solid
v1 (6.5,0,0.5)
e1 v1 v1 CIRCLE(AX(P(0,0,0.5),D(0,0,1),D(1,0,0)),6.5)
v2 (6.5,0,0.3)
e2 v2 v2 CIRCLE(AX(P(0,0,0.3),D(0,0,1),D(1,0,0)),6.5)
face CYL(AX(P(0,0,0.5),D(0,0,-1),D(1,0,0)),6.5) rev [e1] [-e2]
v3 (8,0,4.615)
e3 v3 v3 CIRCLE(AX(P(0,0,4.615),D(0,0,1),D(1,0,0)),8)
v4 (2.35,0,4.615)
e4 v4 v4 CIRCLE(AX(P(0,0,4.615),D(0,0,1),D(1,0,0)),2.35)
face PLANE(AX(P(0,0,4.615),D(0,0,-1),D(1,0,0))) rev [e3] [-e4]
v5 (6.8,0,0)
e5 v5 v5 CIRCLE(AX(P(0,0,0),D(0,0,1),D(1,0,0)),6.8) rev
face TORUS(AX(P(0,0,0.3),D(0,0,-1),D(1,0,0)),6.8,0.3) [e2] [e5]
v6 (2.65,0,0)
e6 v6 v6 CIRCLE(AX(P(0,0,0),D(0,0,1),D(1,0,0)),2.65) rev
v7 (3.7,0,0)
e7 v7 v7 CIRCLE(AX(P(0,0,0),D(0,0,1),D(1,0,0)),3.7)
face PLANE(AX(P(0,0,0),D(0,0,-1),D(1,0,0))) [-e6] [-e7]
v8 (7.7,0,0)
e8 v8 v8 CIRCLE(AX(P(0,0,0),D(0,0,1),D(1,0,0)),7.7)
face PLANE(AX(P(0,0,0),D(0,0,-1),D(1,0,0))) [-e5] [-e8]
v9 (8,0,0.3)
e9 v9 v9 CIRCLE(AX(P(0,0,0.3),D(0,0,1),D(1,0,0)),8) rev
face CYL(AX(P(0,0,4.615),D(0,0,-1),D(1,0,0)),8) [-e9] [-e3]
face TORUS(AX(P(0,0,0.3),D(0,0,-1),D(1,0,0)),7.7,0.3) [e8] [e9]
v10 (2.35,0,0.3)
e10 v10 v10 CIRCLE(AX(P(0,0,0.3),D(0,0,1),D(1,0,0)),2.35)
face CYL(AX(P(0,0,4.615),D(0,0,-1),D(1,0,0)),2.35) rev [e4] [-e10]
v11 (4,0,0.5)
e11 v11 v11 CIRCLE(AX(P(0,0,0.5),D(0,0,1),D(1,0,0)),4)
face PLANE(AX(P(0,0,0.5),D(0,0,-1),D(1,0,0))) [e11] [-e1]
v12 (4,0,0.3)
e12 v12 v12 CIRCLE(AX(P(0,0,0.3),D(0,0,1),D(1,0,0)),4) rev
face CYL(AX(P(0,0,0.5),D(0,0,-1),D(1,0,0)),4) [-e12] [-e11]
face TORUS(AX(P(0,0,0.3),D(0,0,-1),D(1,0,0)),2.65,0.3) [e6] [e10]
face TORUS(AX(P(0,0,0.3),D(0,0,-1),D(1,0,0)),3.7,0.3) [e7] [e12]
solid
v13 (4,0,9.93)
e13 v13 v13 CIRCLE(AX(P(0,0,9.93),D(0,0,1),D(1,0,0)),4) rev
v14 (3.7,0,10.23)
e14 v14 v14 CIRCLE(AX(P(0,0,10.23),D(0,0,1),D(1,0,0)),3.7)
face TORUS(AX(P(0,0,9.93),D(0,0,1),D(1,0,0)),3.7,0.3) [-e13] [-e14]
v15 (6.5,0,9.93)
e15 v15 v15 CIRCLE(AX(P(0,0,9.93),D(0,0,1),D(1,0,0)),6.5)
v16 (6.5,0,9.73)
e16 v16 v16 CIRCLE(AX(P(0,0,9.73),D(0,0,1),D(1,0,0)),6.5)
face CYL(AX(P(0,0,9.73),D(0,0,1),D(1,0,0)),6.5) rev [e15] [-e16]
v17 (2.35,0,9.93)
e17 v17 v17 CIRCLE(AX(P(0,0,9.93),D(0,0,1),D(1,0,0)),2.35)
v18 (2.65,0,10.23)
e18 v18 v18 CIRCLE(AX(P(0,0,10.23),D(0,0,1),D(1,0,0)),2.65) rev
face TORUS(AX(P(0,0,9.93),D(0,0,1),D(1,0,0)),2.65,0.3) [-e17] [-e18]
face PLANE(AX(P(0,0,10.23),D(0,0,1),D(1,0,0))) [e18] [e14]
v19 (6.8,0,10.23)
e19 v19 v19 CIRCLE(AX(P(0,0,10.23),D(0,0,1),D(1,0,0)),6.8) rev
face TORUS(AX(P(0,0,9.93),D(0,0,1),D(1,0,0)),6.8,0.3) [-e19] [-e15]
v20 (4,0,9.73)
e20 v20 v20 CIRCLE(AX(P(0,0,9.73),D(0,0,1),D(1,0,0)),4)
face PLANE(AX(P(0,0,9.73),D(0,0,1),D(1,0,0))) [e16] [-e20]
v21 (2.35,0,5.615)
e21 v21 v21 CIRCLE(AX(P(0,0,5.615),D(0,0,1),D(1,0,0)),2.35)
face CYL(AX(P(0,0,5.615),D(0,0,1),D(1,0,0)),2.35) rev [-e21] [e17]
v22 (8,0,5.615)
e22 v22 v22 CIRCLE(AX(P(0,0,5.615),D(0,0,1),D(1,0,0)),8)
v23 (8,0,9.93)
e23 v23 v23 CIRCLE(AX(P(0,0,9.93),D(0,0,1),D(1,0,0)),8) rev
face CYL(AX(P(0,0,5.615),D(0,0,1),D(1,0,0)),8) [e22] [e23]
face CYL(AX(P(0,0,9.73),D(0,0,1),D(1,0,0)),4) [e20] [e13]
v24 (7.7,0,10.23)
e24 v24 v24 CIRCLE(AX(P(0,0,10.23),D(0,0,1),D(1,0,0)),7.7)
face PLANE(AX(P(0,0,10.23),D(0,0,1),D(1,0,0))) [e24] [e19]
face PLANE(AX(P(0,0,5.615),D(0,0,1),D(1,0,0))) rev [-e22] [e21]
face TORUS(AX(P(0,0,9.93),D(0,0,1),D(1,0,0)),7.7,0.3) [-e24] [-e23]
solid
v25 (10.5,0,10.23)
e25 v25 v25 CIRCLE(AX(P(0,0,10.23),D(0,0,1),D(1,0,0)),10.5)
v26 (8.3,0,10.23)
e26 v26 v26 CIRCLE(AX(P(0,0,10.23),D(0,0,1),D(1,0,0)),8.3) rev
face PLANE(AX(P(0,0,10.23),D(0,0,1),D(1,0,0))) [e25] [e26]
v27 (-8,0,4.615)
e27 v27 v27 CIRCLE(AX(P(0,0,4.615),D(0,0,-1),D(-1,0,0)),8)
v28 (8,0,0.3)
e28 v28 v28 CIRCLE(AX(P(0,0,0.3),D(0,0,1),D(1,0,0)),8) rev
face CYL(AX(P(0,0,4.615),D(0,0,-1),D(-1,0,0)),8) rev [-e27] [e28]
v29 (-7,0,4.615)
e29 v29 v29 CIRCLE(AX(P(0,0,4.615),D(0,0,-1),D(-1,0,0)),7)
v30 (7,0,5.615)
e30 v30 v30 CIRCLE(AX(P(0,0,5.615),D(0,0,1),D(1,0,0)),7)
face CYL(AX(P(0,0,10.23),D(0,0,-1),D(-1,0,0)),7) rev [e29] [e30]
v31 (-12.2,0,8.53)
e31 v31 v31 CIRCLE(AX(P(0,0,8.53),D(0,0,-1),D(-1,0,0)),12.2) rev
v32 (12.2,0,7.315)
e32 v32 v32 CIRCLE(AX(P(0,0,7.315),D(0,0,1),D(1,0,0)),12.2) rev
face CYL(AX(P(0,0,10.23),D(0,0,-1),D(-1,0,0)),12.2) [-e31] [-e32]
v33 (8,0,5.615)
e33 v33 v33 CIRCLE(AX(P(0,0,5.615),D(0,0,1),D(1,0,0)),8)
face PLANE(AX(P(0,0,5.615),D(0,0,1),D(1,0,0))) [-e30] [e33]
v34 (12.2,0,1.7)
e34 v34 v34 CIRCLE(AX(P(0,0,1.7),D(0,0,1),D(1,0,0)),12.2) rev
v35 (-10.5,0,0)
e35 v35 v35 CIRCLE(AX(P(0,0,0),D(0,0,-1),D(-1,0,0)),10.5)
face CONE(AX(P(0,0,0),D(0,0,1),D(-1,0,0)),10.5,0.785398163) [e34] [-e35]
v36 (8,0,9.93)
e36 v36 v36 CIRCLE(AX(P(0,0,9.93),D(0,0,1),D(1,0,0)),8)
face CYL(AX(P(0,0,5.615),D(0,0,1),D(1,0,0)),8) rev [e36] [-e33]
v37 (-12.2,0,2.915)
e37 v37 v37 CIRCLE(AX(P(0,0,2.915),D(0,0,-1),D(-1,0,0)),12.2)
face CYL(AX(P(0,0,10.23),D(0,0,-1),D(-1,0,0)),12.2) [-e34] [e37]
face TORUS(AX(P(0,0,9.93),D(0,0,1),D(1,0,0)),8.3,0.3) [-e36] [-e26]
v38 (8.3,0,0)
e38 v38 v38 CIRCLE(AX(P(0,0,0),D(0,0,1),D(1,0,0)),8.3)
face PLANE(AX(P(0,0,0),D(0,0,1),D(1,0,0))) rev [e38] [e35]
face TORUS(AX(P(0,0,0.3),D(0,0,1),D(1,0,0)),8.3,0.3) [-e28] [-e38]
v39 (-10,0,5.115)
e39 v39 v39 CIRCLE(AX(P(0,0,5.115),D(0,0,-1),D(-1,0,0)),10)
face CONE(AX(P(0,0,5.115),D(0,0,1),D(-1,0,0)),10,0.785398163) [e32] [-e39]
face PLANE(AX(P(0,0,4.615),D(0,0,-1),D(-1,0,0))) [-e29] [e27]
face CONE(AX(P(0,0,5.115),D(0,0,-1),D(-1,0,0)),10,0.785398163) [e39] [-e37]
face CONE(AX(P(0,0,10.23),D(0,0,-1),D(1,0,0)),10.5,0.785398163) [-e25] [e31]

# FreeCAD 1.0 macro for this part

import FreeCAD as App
import Part
import Sketcher


def edges_at(feature, points):
    """Names of the edges that pass closest to the given points."""
    edges = feature.Shape.Edges
    near = lambda p: min(range(len(edges)), key=lambda i: edges[i].distToShape(Part.Vertex(*p))[0])
    return sorted({f"Edge{near(p) + 1}" for p in points})


def faces_at(feature, points):
    """Names of the faces that lie closest to the given points."""
    faces = feature.Shape.Faces
    near = lambda p: min(range(len(faces)), key=lambda i: faces[i].distToShape(Part.Vertex(*p))[0])
    return sorted({f"Face{near(p) + 1}" for p in points})

doc = App.newDocument("Part")
body = doc.addObject("PartDesign::Body", "Body")

sketch1 = body.newObject("Sketcher::SketchObject", "Sketch")
sketch1.AttachmentSupport = (doc.getObject("XY_Plane"), [""])
sketch1.MapMode = "FlatFace"
sketch1.addGeometry(Part.Circle(App.Vector(0, 0, 0), App.Vector(0, 0, 1), 12.2), False)
sketch1.addGeometry(Part.Circle(App.Vector(0, 0, 0), App.Vector(0, 0, 1), 7), False)
sketch1.addConstraint(Sketcher.Constraint("Coincident", 0, 3, -1, 1))
sketch1.addConstraint(Sketcher.Constraint("Coincident", 1, 3, -1, 1))
sketch1.addConstraint(Sketcher.Constraint("Diameter", 1, 14.0))
sketch1.addConstraint(Sketcher.Constraint("Diameter", 0, 24.4))
pad1 = body.newObject("PartDesign::Pad", "Pad")
pad1.Profile = sketch1
pad1.Length = 10.23
body2 = doc.addObject("PartDesign::Body", "Body001")

sketch2 = body2.newObject("Sketcher::SketchObject", "Sketch001")
sketch2.AttachmentSupport = (doc.getObject("XY_Plane001"), [""])
sketch2.MapMode = "FlatFace"
sketch2.AttachmentOffset = App.Placement(App.Vector(0, 0, 10.23), App.Rotation())
sketch2.addGeometry(Part.LineSegment(App.Vector(-19.219, 19.219, 0), App.Vector(-19.219, -19.219, 0)), False)
sketch2.addGeometry(Part.LineSegment(App.Vector(-19.219, -19.219, 0), App.Vector(19.219, -19.219, 0)), False)
sketch2.addGeometry(Part.LineSegment(App.Vector(19.219, -19.219, 0), App.Vector(19.219, 19.219, 0)), False)
sketch2.addGeometry(Part.LineSegment(App.Vector(19.219, 19.219, 0), App.Vector(-19.219, 19.219, 0)), False)
sketch2.addGeometry(Part.Circle(App.Vector(0, 0, 0), App.Vector(0, 0, 1), 10.5), False)
sketch2.addConstraint(Sketcher.Constraint("Coincident", 0, 2, 1, 1))
sketch2.addConstraint(Sketcher.Constraint("Coincident", 1, 2, 2, 1))
sketch2.addConstraint(Sketcher.Constraint("Coincident", 2, 2, 3, 1))
sketch2.addConstraint(Sketcher.Constraint("Coincident", 3, 2, 0, 1))
sketch2.addConstraint(Sketcher.Constraint("Vertical", 0))
sketch2.addConstraint(Sketcher.Constraint("Horizontal", 1))
sketch2.addConstraint(Sketcher.Constraint("Vertical", 2))
sketch2.addConstraint(Sketcher.Constraint("Horizontal", 3))
sketch2.addConstraint(Sketcher.Constraint("Coincident", 4, 3, -1, 1))
sketch2.addConstraint(Sketcher.Constraint("Symmetric", 0, 2, 2, 2, -1, 1))
sketch2.addConstraint(Sketcher.Constraint("Equal", 3, 0))
sketch2.addConstraint(Sketcher.Constraint("Diameter", 4, 21.0))
sketch2.addConstraint(Sketcher.Constraint("DistanceX", 1, 1, 1, 2, 38.438))
pad2 = body2.newObject("PartDesign::Pad", "Pad001")
pad2.Profile = sketch2
pad2.Length = 2.42
pad2.Reversed = True
doc.recompute()

datumplane = body2.newObject("PartDesign::Plane", "DatumPlane")
datumplane.AttachmentSupport = (doc.getObject("XY_Plane001"), [""])
datumplane.MapMode = "FlatFace"
datumplane.AttachmentOffset = App.Placement(App.Vector(0, 0, 10.23), App.Rotation())
draft = body2.newObject("PartDesign::Draft", "Draft")
draft.Base = (pad2, faces_at(pad2, [
    (0, -19.219, 9.02),
    (19.219, 0, 9.02),
    (0, 19.219, 9.02),
    (-19.219, 0, 9.02),
    (-10.5, 0, 9.02),
]))
draft.NeutralPlane = (datumplane, [""])
draft.Angle = 45
draft.Reversed = True
doc.recompute()

boolean = body.newObject("PartDesign::Boolean", "Boolean")
boolean.Type = "Cut"
boolean.addObjects([body2])
body3 = doc.addObject("PartDesign::Body", "Body002")

sketch3 = body3.newObject("Sketcher::SketchObject", "Sketch002")
sketch3.AttachmentSupport = (doc.getObject("XY_Plane002"), [""])
sketch3.MapMode = "FlatFace"
sketch3.addGeometry(Part.LineSegment(App.Vector(19.219, 19.219, 0), App.Vector(19.219, -19.219, 0)), False)
sketch3.addGeometry(Part.LineSegment(App.Vector(19.219, -19.219, 0), App.Vector(-19.219, -19.219, 0)), False)
sketch3.addGeometry(Part.LineSegment(App.Vector(-19.219, -19.219, 0), App.Vector(-19.219, 19.219, 0)), False)
sketch3.addGeometry(Part.LineSegment(App.Vector(-19.219, 19.219, 0), App.Vector(19.219, 19.219, 0)), False)
sketch3.addGeometry(Part.Circle(App.Vector(0, 0, 0), App.Vector(0, 0, 1), 10.5), False)
sketch3.addConstraint(Sketcher.Constraint("Coincident", 0, 2, 1, 1))
sketch3.addConstraint(Sketcher.Constraint("Coincident", 1, 2, 2, 1))
sketch3.addConstraint(Sketcher.Constraint("Coincident", 2, 2, 3, 1))
sketch3.addConstraint(Sketcher.Constraint("Coincident", 3, 2, 0, 1))
sketch3.addConstraint(Sketcher.Constraint("Vertical", 0))
sketch3.addConstraint(Sketcher.Constraint("Horizontal", 1))
sketch3.addConstraint(Sketcher.Constraint("Vertical", 2))
sketch3.addConstraint(Sketcher.Constraint("Horizontal", 3))
sketch3.addConstraint(Sketcher.Constraint("Coincident", 4, 3, -1, 1))
sketch3.addConstraint(Sketcher.Constraint("Symmetric", 0, 2, 2, 2, -1, 1))
sketch3.addConstraint(Sketcher.Constraint("Equal", 3, 0))
sketch3.addConstraint(Sketcher.Constraint("Diameter", 4, 21.0))
sketch3.addConstraint(Sketcher.Constraint("DistanceX", 1, 2, 1, 1, 38.438))
pad3 = body3.newObject("PartDesign::Pad", "Pad002")
pad3.Profile = sketch3
pad3.Length = 2.42
doc.recompute()

draft2 = body3.newObject("PartDesign::Draft", "Draft001")
draft2.Base = (pad3, faces_at(pad3, [
    (0, -19.219, 1.21),
    (-19.219, 0, 1.21),
    (0, 19.219, 1.21),
    (19.219, 0, 1.21),
    (10.5, 0, 1.21),
]))
draft2.NeutralPlane = (doc.getObject("XY_Plane002"), [""])
draft2.Angle = 45
draft2.Reversed = False
doc.recompute()

boolean2 = body.newObject("PartDesign::Boolean", "Boolean001")
boolean2.Type = "Cut"
boolean2.addObjects([body3])

sketch4 = body.newObject("Sketcher::SketchObject", "Sketch003")
sketch4.AttachmentSupport = (doc.getObject("XY_Plane"), [""])
sketch4.MapMode = "FlatFace"
sketch4.AttachmentOffset = App.Placement(App.Vector(0, 0, 10.23), App.Rotation())
sketch4.addGeometry(Part.Circle(App.Vector(0, 0, 0), App.Vector(0, 0, 1), 8), False)
sketch4.addConstraint(Sketcher.Constraint("Coincident", 0, 3, -1, 1))
sketch4.addConstraint(Sketcher.Constraint("Diameter", 0, 16.0))
pocket1 = body.newObject("PartDesign::Pocket", "Pocket")
pocket1.Profile = sketch4
pocket1.Length = 4.615

sketch5 = body.newObject("Sketcher::SketchObject", "Sketch004")
sketch5.AttachmentSupport = (doc.getObject("XY_Plane"), [""])
sketch5.MapMode = "FlatFace"
sketch5.AttachmentOffset = App.Placement(App.Vector(0, 0, 4.615), App.Rotation())
sketch5.addGeometry(Part.Circle(App.Vector(0, 0, 0), App.Vector(0, 0, 1), 8), False)
sketch5.addConstraint(Sketcher.Constraint("Coincident", 0, 3, -1, 1))
sketch5.addConstraint(Sketcher.Constraint("Diameter", 0, 16.0))
pocket2 = body.newObject("PartDesign::Pocket", "Pocket001")
pocket2.Profile = sketch5
pocket2.Length = 4.615

sketch6 = body.newObject("Sketcher::SketchObject", "Sketch005")
sketch6.AttachmentSupport = (doc.getObject("XY_Plane"), [""])
sketch6.MapMode = "FlatFace"
sketch6.AttachmentOffset = App.Placement(App.Vector(0, 0, 5.115), App.Rotation())
sketch6.addGeometry(Part.LineSegment(App.Vector(19.494, 19.494, 0), App.Vector(19.494, -19.494, 0)), False)
sketch6.addGeometry(Part.LineSegment(App.Vector(19.494, -19.494, 0), App.Vector(-19.494, -19.494, 0)), False)
sketch6.addGeometry(Part.LineSegment(App.Vector(-19.494, -19.494, 0), App.Vector(-19.494, 19.494, 0)), False)
sketch6.addGeometry(Part.LineSegment(App.Vector(-19.494, 19.494, 0), App.Vector(19.494, 19.494, 0)), False)
sketch6.addGeometry(Part.Circle(App.Vector(0, 0, 0), App.Vector(0, 0, 1), 10), False)
sketch6.addConstraint(Sketcher.Constraint("Coincident", 0, 2, 1, 1))
sketch6.addConstraint(Sketcher.Constraint("Coincident", 1, 2, 2, 1))
sketch6.addConstraint(Sketcher.Constraint("Coincident", 2, 2, 3, 1))
sketch6.addConstraint(Sketcher.Constraint("Coincident", 3, 2, 0, 1))
sketch6.addConstraint(Sketcher.Constraint("Vertical", 0))
sketch6.addConstraint(Sketcher.Constraint("Horizontal", 1))
sketch6.addConstraint(Sketcher.Constraint("Vertical", 2))
sketch6.addConstraint(Sketcher.Constraint("Horizontal", 3))
sketch6.addConstraint(Sketcher.Constraint("Coincident", 4, 3, -1, 1))
sketch6.addConstraint(Sketcher.Constraint("Symmetric", 0, 2, 2, 2, -1, 1))
sketch6.addConstraint(Sketcher.Constraint("Equal", 3, 0))
sketch6.addConstraint(Sketcher.Constraint("Diameter", 4, 20.0))
sketch6.addConstraint(Sketcher.Constraint("DistanceX", 1, 2, 1, 1, 38.988))
pocket3 = body.newObject("PartDesign::Pocket", "Pocket002")
pocket3.Profile = sketch6
pocket3.Length = 2.695
pocket3.TaperAngle = 45

sketch7 = body.newObject("Sketcher::SketchObject", "Sketch006")
sketch7.AttachmentSupport = (doc.getObject("XY_Plane"), [""])
sketch7.MapMode = "FlatFace"
sketch7.AttachmentOffset = App.Placement(App.Vector(0, 0, 5.115), App.Rotation())
sketch7.addGeometry(Part.LineSegment(App.Vector(19.494, 19.494, 0), App.Vector(19.494, -19.494, 0)), False)
sketch7.addGeometry(Part.LineSegment(App.Vector(19.494, -19.494, 0), App.Vector(-19.494, -19.494, 0)), False)
sketch7.addGeometry(Part.LineSegment(App.Vector(-19.494, -19.494, 0), App.Vector(-19.494, 19.494, 0)), False)
sketch7.addGeometry(Part.LineSegment(App.Vector(-19.494, 19.494, 0), App.Vector(19.494, 19.494, 0)), False)
sketch7.addGeometry(Part.Circle(App.Vector(0, 0, 0), App.Vector(0, 0, 1), 10), False)
sketch7.addConstraint(Sketcher.Constraint("Coincident", 0, 2, 1, 1))
sketch7.addConstraint(Sketcher.Constraint("Coincident", 1, 2, 2, 1))
sketch7.addConstraint(Sketcher.Constraint("Coincident", 2, 2, 3, 1))
sketch7.addConstraint(Sketcher.Constraint("Coincident", 3, 2, 0, 1))
sketch7.addConstraint(Sketcher.Constraint("Vertical", 0))
sketch7.addConstraint(Sketcher.Constraint("Horizontal", 1))
sketch7.addConstraint(Sketcher.Constraint("Vertical", 2))
sketch7.addConstraint(Sketcher.Constraint("Horizontal", 3))
sketch7.addConstraint(Sketcher.Constraint("Coincident", 4, 3, -1, 1))
sketch7.addConstraint(Sketcher.Constraint("Symmetric", 0, 2, 2, 2, -1, 1))
sketch7.addConstraint(Sketcher.Constraint("Equal", 3, 0))
sketch7.addConstraint(Sketcher.Constraint("Diameter", 4, 20.0))
sketch7.addConstraint(Sketcher.Constraint("DistanceX", 1, 2, 1, 1, 38.988))
pocket4 = body.newObject("PartDesign::Pocket", "Pocket003")
pocket4.Profile = sketch7
pocket4.Length = 2.695
pocket4.Reversed = True
pocket4.TaperAngle = 45
doc.recompute()

fillet = body.newObject("PartDesign::Fillet", "Fillet")
fillet.Base = (pocket4, edges_at(pocket4, [(-8, 0, 10.23), (-8, 0, 0)]))
fillet.Radius = 0.3
body4 = doc.addObject("PartDesign::Body", "Body003")

sketch8 = body4.newObject("Sketcher::SketchObject", "Sketch007")
sketch8.AttachmentSupport = (doc.getObject("XY_Plane003"), [""])
sketch8.MapMode = "FlatFace"
sketch8.AttachmentOffset = App.Placement(App.Vector(0, 0, 10.23), App.Rotation())
sketch8.addGeometry(Part.Circle(App.Vector(0, 0, 0), App.Vector(0, 0, 1), 8), False)
sketch8.addGeometry(Part.Circle(App.Vector(0, 0, 0), App.Vector(0, 0, 1), 2.35), False)
sketch8.addConstraint(Sketcher.Constraint("Coincident", 0, 3, -1, 1))
sketch8.addConstraint(Sketcher.Constraint("Coincident", 1, 3, -1, 1))
sketch8.addConstraint(Sketcher.Constraint("Diameter", 0, 16.0))
sketch8.addConstraint(Sketcher.Constraint("Diameter", 1, 4.7))
pad4 = body4.newObject("PartDesign::Pad", "Pad003")
pad4.Profile = sketch8
pad4.Length = 4.615
pad4.Reversed = True

sketch9 = body4.newObject("Sketcher::SketchObject", "Sketch008")
sketch9.AttachmentSupport = (doc.getObject("XY_Plane003"), [""])
sketch9.MapMode = "FlatFace"
sketch9.AttachmentOffset = App.Placement(App.Vector(0, 0, 10.23), App.Rotation())
sketch9.addGeometry(Part.Circle(App.Vector(0, 0, 0), App.Vector(0, 0, 1), 6.5), False)
sketch9.addGeometry(Part.Circle(App.Vector(0, 0, 0), App.Vector(0, 0, 1), 4), False)
sketch9.addConstraint(Sketcher.Constraint("Coincident", 0, 3, -1, 1))
sketch9.addConstraint(Sketcher.Constraint("Coincident", 1, 3, -1, 1))
sketch9.addConstraint(Sketcher.Constraint("Diameter", 0, 13.0))
sketch9.addConstraint(Sketcher.Constraint("Diameter", 1, 8.0))
pocket5 = body4.newObject("PartDesign::Pocket", "Pocket004")
pocket5.Profile = sketch9
pocket5.Length = 0.5
doc.recompute()

fillet2 = body4.newObject("PartDesign::Fillet", "Fillet001")
fillet2.Base = (pocket5, edges_at(pocket5, [
    (-6.5, 0, 10.23),
    (-4, 0, 10.23),
    (-8, 0, 10.23),
    (-2.35, 0, 10.23),
]))
fillet2.Radius = 0.3
body5 = doc.addObject("PartDesign::Body", "Body004")
doc.recompute()

mirroring = doc.addObject("Part::Mirroring", "Mirroring")
mirroring.Source = body4
mirroring.Base = App.Vector(0, 0, 5.115)
mirroring.Normal = App.Vector(0, 0, -1)
body5.BaseFeature = mirroring
doc.recompute()
mirroring.Visibility = False

doc.recompute()
